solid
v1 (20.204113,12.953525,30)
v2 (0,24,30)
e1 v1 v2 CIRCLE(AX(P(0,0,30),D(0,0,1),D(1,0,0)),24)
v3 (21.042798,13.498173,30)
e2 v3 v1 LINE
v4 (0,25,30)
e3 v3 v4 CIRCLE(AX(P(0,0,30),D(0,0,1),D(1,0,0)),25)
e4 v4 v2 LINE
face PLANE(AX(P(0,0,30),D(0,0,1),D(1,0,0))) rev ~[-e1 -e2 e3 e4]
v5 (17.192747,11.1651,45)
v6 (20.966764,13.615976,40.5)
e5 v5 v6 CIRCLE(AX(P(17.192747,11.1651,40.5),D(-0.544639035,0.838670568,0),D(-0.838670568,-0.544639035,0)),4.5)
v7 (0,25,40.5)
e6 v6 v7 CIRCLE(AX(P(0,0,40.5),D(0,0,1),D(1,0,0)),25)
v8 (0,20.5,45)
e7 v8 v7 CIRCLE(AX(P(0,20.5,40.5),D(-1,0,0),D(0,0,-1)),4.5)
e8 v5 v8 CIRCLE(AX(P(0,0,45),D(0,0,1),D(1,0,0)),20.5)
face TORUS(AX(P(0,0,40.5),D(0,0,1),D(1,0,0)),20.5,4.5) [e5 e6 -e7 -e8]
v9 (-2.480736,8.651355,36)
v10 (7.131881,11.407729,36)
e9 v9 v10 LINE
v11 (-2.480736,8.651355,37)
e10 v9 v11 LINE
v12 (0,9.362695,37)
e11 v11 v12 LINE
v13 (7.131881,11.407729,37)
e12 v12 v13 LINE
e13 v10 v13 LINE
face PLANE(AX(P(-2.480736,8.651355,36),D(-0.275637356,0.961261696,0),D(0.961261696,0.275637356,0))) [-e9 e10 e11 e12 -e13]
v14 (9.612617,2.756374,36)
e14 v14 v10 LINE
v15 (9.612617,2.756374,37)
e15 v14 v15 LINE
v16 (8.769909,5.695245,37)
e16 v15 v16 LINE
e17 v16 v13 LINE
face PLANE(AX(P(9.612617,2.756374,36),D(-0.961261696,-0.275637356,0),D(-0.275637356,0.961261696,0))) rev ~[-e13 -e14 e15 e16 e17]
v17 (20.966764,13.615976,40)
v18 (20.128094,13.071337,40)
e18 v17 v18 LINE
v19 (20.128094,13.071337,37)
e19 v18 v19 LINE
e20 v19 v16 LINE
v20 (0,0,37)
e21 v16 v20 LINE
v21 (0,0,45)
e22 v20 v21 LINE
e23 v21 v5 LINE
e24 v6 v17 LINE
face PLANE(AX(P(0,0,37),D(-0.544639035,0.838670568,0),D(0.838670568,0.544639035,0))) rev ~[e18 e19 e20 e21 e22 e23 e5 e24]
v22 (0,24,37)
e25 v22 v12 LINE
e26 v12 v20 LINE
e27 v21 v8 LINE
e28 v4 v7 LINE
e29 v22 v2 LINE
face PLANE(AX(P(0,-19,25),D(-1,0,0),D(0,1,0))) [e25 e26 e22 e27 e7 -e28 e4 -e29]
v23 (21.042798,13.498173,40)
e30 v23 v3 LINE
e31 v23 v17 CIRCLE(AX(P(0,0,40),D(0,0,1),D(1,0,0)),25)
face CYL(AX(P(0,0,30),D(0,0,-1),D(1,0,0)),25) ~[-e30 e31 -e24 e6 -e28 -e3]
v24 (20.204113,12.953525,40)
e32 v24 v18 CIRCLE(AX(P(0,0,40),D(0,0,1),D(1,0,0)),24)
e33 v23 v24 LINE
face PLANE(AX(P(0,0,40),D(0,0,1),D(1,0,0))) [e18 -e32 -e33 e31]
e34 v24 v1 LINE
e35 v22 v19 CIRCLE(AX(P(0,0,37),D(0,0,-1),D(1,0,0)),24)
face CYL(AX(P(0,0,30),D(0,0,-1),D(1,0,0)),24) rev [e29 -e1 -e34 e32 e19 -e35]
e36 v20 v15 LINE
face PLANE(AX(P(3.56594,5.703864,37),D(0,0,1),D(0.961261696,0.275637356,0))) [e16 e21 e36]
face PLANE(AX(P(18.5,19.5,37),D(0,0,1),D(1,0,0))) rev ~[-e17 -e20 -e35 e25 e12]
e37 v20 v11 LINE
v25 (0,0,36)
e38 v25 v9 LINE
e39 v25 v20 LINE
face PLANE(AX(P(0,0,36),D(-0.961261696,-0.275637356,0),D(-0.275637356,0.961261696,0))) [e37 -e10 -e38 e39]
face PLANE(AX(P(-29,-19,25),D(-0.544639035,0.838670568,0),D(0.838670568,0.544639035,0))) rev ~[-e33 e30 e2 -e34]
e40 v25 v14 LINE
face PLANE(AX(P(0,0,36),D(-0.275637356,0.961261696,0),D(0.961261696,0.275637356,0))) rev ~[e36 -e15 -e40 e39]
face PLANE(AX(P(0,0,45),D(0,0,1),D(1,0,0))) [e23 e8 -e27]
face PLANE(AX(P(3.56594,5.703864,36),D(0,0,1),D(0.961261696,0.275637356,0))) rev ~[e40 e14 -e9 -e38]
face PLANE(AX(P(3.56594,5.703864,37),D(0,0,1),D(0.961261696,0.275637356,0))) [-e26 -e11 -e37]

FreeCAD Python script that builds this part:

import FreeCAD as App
import Part
import Sketcher
from FreeCAD import Vector
Q = App.Units.Quantity


def edges_at(feature, points):
    """Names of the edges that pass closest to the given points."""
    edges = feature.Shape.Edges
    near = lambda p: min(range(len(edges)), key=lambda i: edges[i].distToShape(Part.Vertex(*p))[0])
    return sorted({f"Edge{near(p) + 1}" for p in points})

doc = App.newDocument("Part")
body = doc.addObject("PartDesign::Body", "Body")

sketch1 = doc.addObject("Sketcher::SketchObject", "Sketch")
body.addObject(sketch1)
sketch1.AttachmentSupport = (doc.XY_Plane, [""])
sketch1.MapMode = "FlatFace"
sketch1.addGeometry(Part.LineSegment(Vector(0, 9, 0), Vector(0, 0, 0)), False)
sketch1.addGeometry(Part.LineSegment(Vector(0, 0, 0), Vector(10, 0, 0)), False)
sketch1.addGeometry(Part.LineSegment(Vector(10, 0, 0), Vector(10, 9, 0)), False)
sketch1.addGeometry(Part.LineSegment(Vector(10, 9, 0), Vector(0, 9, 0)), False)
sketch1.addConstraint(Sketcher.Constraint("Coincident", 0, 2, 1, 1))
sketch1.addConstraint(Sketcher.Constraint("Coincident", 1, 2, 2, 1))
sketch1.addConstraint(Sketcher.Constraint("Coincident", 2, 2, 3, 1))
sketch1.addConstraint(Sketcher.Constraint("Coincident", 3, 2, 0, 1))
sketch1.addConstraint(Sketcher.Constraint("Vertical", 0))
sketch1.addConstraint(Sketcher.Constraint("Horizontal", 1))
sketch1.addConstraint(Sketcher.Constraint("Vertical", 2))
sketch1.addConstraint(Sketcher.Constraint("Horizontal", 3))
sketch1.addConstraint(Sketcher.Constraint("Coincident", 0, 2, -1, 1))
sketch1.addConstraint(Sketcher.Constraint("DistanceX", 1, 1, 1, 2, Q("10 mm")))
sketch1.addConstraint(Sketcher.Constraint("DistanceY", 0, 2, 0, 1, Q("9 mm")))
pad1 = doc.addObject("PartDesign::Pad", "Pad")
body.addObject(pad1)
pad1.Profile = sketch1
pad1.Length = 1
body2 = doc.addObject("PartDesign::Body", "Body001")
doc.recompute()

body.Placement = App.Placement(Vector(0, 0, 36), App.Rotation(Vector(0, 0, 1), 16))
boolean = doc.addObject("PartDesign::Boolean", "Boolean")
body2.addObject(boolean)
boolean.Type = "Fuse"
boolean.addObjects([body])
body3 = doc.addObject("PartDesign::Body", "Body002")

sketch2 = doc.addObject("Sketcher::SketchObject", "Sketch001")
body3.addObject(sketch2)
sketch2.AttachmentSupport = (doc.getObject("XY_Plane002"), [""])
sketch2.MapMode = "FlatFace"
sketch2.addGeometry(Part.Circle(Vector(0, 0, 0), Vector(0, 0, 1), 22), False)
sketch2.addConstraint(Sketcher.Constraint("Coincident", 0, 3, -1, 1))
sketch2.addConstraint(Sketcher.Constraint("Diameter", 0, Q("44 mm")))
pad2 = doc.addObject("PartDesign::Pad", "Pad001")
body3.addObject(pad2)
pad2.Profile = sketch2
pad2.Length = 37
body4 = doc.addObject("PartDesign::Body", "Body003")

sketch3 = doc.addObject("Sketcher::SketchObject", "Sketch002")
body4.addObject(sketch3)
sketch3.AttachmentSupport = (doc.getObject("XY_Plane003"), [""])
sketch3.MapMode = "FlatFace"
sketch3.addGeometry(Part.Circle(Vector(0, 0, 0), Vector(0, 0, 1), 25), False)
sketch3.addConstraint(Sketcher.Constraint("Coincident", 0, 3, -1, 1))
sketch3.addConstraint(Sketcher.Constraint("Diameter", 0, Q("50 mm")))
pad3 = doc.addObject("PartDesign::Pad", "Pad002")
body4.addObject(pad3)
pad3.Profile = sketch3
pad3.Length = 40
doc.recompute()

boolean2 = doc.addObject("PartDesign::Boolean", "Boolean001")
body4.addObject(boolean2)
boolean2.Type = "Cut"
boolean2.addObjects([body3])
body5 = doc.addObject("PartDesign::Body", "Body004")

sketch4 = doc.addObject("Sketcher::SketchObject", "Sketch003")
body5.addObject(sketch4)
sketch4.AttachmentSupport = (doc.getObject("XY_Plane004"), [""])
sketch4.MapMode = "FlatFace"
sketch4.addGeometry(Part.Circle(Vector(0, 0, 0), Vector(0, 0, 1), 21), False)
sketch4.addConstraint(Sketcher.Constraint("Coincident", 0, 3, -1, 1))
sketch4.addConstraint(Sketcher.Constraint("Diameter", 0, Q("42 mm")))
pad4 = doc.addObject("PartDesign::Pad", "Pad003")
body5.addObject(pad4)
pad4.Profile = sketch4
pad4.Length = 21
body6 = doc.addObject("PartDesign::Body", "Body005")

sketch5 = doc.addObject("Sketcher::SketchObject", "Sketch004")
body6.addObject(sketch5)
sketch5.AttachmentSupport = (doc.getObject("XY_Plane005"), [""])
sketch5.MapMode = "FlatFace"
sketch5.addGeometry(Part.Circle(Vector(0, 0, 0), Vector(0, 0, 1), 23), False)
sketch5.addConstraint(Sketcher.Constraint("Coincident", 0, 3, -1, 1))
sketch5.addConstraint(Sketcher.Constraint("Diameter", 0, Q("46 mm")))
pad5 = doc.addObject("PartDesign::Pad", "Pad004")
body6.addObject(pad5)
pad5.Profile = sketch5
pad5.Length = 10
doc.recompute()

boolean3 = doc.addObject("PartDesign::Boolean", "Boolean002")
body6.addObject(boolean3)
boolean3.Type = "Cut"
boolean3.addObjects([body5])
body7 = doc.addObject("PartDesign::Body", "Body006")
doc.recompute()

body6.Placement = App.Placement(Vector(0, 0, -5), App.Rotation(Vector(0, 0, 1), 0))
boolean4 = doc.addObject("PartDesign::Boolean", "Boolean003")
body7.addObject(boolean4)
boolean4.Type = "Fuse"
boolean4.addObjects([body6])
body8 = doc.addObject("PartDesign::Body", "Body007")

sketch6 = doc.addObject("Sketcher::SketchObject", "Sketch005")
body8.addObject(sketch6)
sketch6.AttachmentSupport = (doc.getObject("XY_Plane007"), [""])
sketch6.MapMode = "FlatFace"
sketch6.AttachmentOffset = App.Placement(Vector(0, 0, 40), App.Rotation())
sketch6.addGeometry(Part.Circle(Vector(0, 0, 0), Vector(0, 0, 1), 25), False)
sketch6.addConstraint(Sketcher.Constraint("Coincident", 0, 3, -1, 1))
sketch6.addConstraint(Sketcher.Constraint("Diameter", 0, Q("50 mm")))
pad6 = doc.addObject("PartDesign::Pad", "Pad005")
body8.addObject(pad6)
pad6.Profile = sketch6
pad6.Length = 5
doc.recompute()

fillet = doc.addObject("PartDesign::Fillet", "Fillet")
body8.addObject(fillet)
fillet.Base = (pad6, edges_at(pad6, [(-25, 0, 45)]))
fillet.Radius = 4.5
doc.recompute()

boolean5 = doc.addObject("PartDesign::Boolean", "Boolean004")
body8.addObject(boolean5)
boolean5.Type = "Fuse"
boolean5.addObjects([body4])
doc.recompute()

boolean6 = doc.addObject("PartDesign::Boolean", "Boolean005")
body8.addObject(boolean6)
boolean6.Type = "Fuse"
boolean6.addObjects([body7])
body9 = doc.addObject("PartDesign::Body", "Body008")

sketch7 = doc.addObject("Sketcher::SketchObject", "Sketch006")
body9.addObject(sketch7)
sketch7.AttachmentSupport = (doc.getObject("XY_Plane008"), [""])
sketch7.MapMode = "FlatFace"
sketch7.addGeometry(Part.LineSegment(Vector(0, 39, 0), Vector(0, 0, 0)), False)
sketch7.addGeometry(Part.LineSegment(Vector(0, 0, 0), Vector(37, 0, 0)), False)
sketch7.addGeometry(Part.LineSegment(Vector(37, 0, 0), Vector(37, 39, 0)), False)
sketch7.addGeometry(Part.LineSegment(Vector(37, 39, 0), Vector(0, 39, 0)), False)
sketch7.addConstraint(Sketcher.Constraint("Coincident", 0, 2, 1, 1))
sketch7.addConstraint(Sketcher.Constraint("Coincident", 1, 2, 2, 1))
sketch7.addConstraint(Sketcher.Constraint("Coincident", 2, 2, 3, 1))
sketch7.addConstraint(Sketcher.Constraint("Coincident", 3, 2, 0, 1))
sketch7.addConstraint(Sketcher.Constraint("Vertical", 0))
sketch7.addConstraint(Sketcher.Constraint("Horizontal", 1))
sketch7.addConstraint(Sketcher.Constraint("Vertical", 2))
sketch7.addConstraint(Sketcher.Constraint("Horizontal", 3))
sketch7.addConstraint(Sketcher.Constraint("Coincident", 0, 2, -1, 1))
sketch7.addConstraint(Sketcher.Constraint("DistanceX", 1, 1, 1, 2, Q("37 mm")))
sketch7.addConstraint(Sketcher.Constraint("DistanceY", 0, 2, 0, 1, Q("39 mm")))
pad7 = doc.addObject("PartDesign::Pad", "Pad006")
body9.addObject(pad7)
pad7.Profile = sketch7
pad7.Length = 10
body10 = doc.addObject("PartDesign::Body", "Body009")
doc.recompute()

body9.Placement = App.Placement(Vector(0, 0, 37), App.Rotation(Vector(0, 0, -1), 57))
boolean7 = doc.addObject("PartDesign::Boolean", "Boolean006")
body10.addObject(boolean7)
boolean7.Type = "Fuse"
boolean7.addObjects([body9])
body11 = doc.addObject("PartDesign::Body", "Body010")

sketch8 = doc.addObject("Sketcher::SketchObject", "Sketch007")
body11.addObject(sketch8)
sketch8.AttachmentSupport = (doc.getObject("XY_Plane010"), [""])
sketch8.MapMode = "FlatFace"
sketch8.AttachmentOffset = App.Placement(Vector(0, 0, 37), App.Rotation())
sketch8.addGeometry(Part.LineSegment(Vector(0, 39, 0), Vector(0, 0, 0)), False)
sketch8.addGeometry(Part.LineSegment(Vector(0, 0, 0), Vector(37, 0, 0)), False)
sketch8.addGeometry(Part.LineSegment(Vector(37, 0, 0), Vector(37, 39, 0)), False)
sketch8.addGeometry(Part.LineSegment(Vector(37, 39, 0), Vector(0, 39, 0)), False)
sketch8.addConstraint(Sketcher.Constraint("Coincident", 0, 2, 1, 1))
sketch8.addConstraint(Sketcher.Constraint("Coincident", 1, 2, 2, 1))
sketch8.addConstraint(Sketcher.Constraint("Coincident", 2, 2, 3, 1))
sketch8.addConstraint(Sketcher.Constraint("Coincident", 3, 2, 0, 1))
sketch8.addConstraint(Sketcher.Constraint("Vertical", 0))
sketch8.addConstraint(Sketcher.Constraint("Horizontal", 1))
sketch8.addConstraint(Sketcher.Constraint("Vertical", 2))
sketch8.addConstraint(Sketcher.Constraint("Horizontal", 3))
sketch8.addConstraint(Sketcher.Constraint("Coincident", 0, 2, -1, 1))
sketch8.addConstraint(Sketcher.Constraint("DistanceX", 1, 1, 1, 2, Q("37 mm")))
sketch8.addConstraint(Sketcher.Constraint("DistanceY", 0, 2, 0, 1, Q("39 mm")))
pad8 = doc.addObject("PartDesign::Pad", "Pad007")
body11.addObject(pad8)
pad8.Profile = sketch8
pad8.Length = 10
doc.recompute()

boolean8 = doc.addObject("PartDesign::Boolean", "Boolean007")
body11.addObject(boolean8)
boolean8.Type = "Cut"
boolean8.addObjects([body10])
doc.recompute()

boolean9 = doc.addObject("PartDesign::Boolean", "Boolean008")
body11.addObject(boolean9)
boolean9.Type = "Common"
boolean9.addObjects([body8])
body12 = doc.addObject("PartDesign::Body", "Body011")

sketch9 = doc.addObject("Sketcher::SketchObject", "Sketch008")
body12.addObject(sketch9)
sketch9.AttachmentSupport = (doc.getObject("XY_Plane011"), [""])
sketch9.MapMode = "FlatFace"
sketch9.AttachmentOffset = App.Placement(Vector(0, 0, 29), App.Rotation())
sketch9.addGeometry(Part.LineSegment(Vector(-33, 51, 0), Vector(-33, -19, 0)), False)
sketch9.addGeometry(Part.LineSegment(Vector(-33, -19, 0), Vector(0, -19, 0)), False)
sketch9.addGeometry(Part.LineSegment(Vector(0, -19, 0), Vector(0, 51, 0)), False)
sketch9.addGeometry(Part.LineSegment(Vector(0, 51, 0), Vector(-33, 51, 0)), False)
sketch9.addConstraint(Sketcher.Constraint("Coincident", 0, 2, 1, 1))
sketch9.addConstraint(Sketcher.Constraint("Coincident", 1, 2, 2, 1))
sketch9.addConstraint(Sketcher.Constraint("Coincident", 2, 2, 3, 1))
sketch9.addConstraint(Sketcher.Constraint("Coincident", 3, 2, 0, 1))
sketch9.addConstraint(Sketcher.Constraint("Vertical", 0))
sketch9.addConstraint(Sketcher.Constraint("Horizontal", 1))
sketch9.addConstraint(Sketcher.Constraint("Vertical", 2))
sketch9.addConstraint(Sketcher.Constraint("Horizontal", 3))
sketch9.addConstraint(Sketcher.Constraint("PointOnObject", 1, 2, -2))
sketch9.addConstraint(Sketcher.Constraint("DistanceX", 1, 1, 1, 2, Q("33 mm")))
sketch9.addConstraint(Sketcher.Constraint("DistanceY", 0, 2, 0, 1, Q("70 mm")))
sketch9.addConstraint(Sketcher.Constraint("DistanceY", 0, 2, -1, 1, Q("19 mm")))
pad9 = doc.addObject("PartDesign::Pad", "Pad008")
body12.addObject(pad9)
pad9.Profile = sketch9
pad9.Length = 17
body13 = doc.addObject("PartDesign::Body", "Body012")

sketch10 = doc.addObject("Sketcher::SketchObject", "Sketch009")
body13.addObject(sketch10)
sketch10.AttachmentSupport = (doc.getObject("XY_Plane012"), [""])
sketch10.MapMode = "FlatFace"
sketch10.addGeometry(Part.LineSegment(Vector(0, 70, 0), Vector(0, 0, 0)), False)
sketch10.addGeometry(Part.LineSegment(Vector(0, 0, 0), Vector(33, 0, 0)), False)
sketch10.addGeometry(Part.LineSegment(Vector(33, 0, 0), Vector(33, 70, 0)), False)
sketch10.addGeometry(Part.LineSegment(Vector(33, 70, 0), Vector(0, 70, 0)), False)
sketch10.addConstraint(Sketcher.Constraint("Coincident", 0, 2, 1, 1))
sketch10.addConstraint(Sketcher.Constraint("Coincident", 1, 2, 2, 1))
sketch10.addConstraint(Sketcher.Constraint("Coincident", 2, 2, 3, 1))
sketch10.addConstraint(Sketcher.Constraint("Coincident", 3, 2, 0, 1))
sketch10.addConstraint(Sketcher.Constraint("Vertical", 0))
sketch10.addConstraint(Sketcher.Constraint("Horizontal", 1))
sketch10.addConstraint(Sketcher.Constraint("Vertical", 2))
sketch10.addConstraint(Sketcher.Constraint("Horizontal", 3))
sketch10.addConstraint(Sketcher.Constraint("Coincident", 0, 2, -1, 1))
sketch10.addConstraint(Sketcher.Constraint("DistanceX", 1, 1, 1, 2, Q("33 mm")))
sketch10.addConstraint(Sketcher.Constraint("DistanceY", 0, 2, 0, 1, Q("70 mm")))
pad10 = doc.addObject("PartDesign::Pad", "Pad009")
body13.addObject(pad10)
pad10.Profile = sketch10
pad10.Length = 17
body14 = doc.addObject("PartDesign::Body", "Body013")
doc.recompute()

body13.Placement = App.Placement(Vector(-29, -19, 29), App.Rotation(Vector(0, 0, -1), 57))
boolean10 = doc.addObject("PartDesign::Boolean", "Boolean009")
body14.addObject(boolean10)
boolean10.Type = "Fuse"
boolean10.addObjects([body13])
doc.recompute()

boolean11 = doc.addObject("PartDesign::Boolean", "Boolean010")
body14.addObject(boolean11)
boolean11.Type = "Fuse"
boolean11.addObjects([body12])
body15 = doc.addObject("PartDesign::Body", "Body014")

sketch11 = doc.addObject("Sketcher::SketchObject", "Sketch010")
body15.addObject(sketch11)
sketch11.AttachmentSupport = (doc.getObject("XY_Plane014"), [""])
sketch11.MapMode = "FlatFace"
sketch11.AttachmentOffset = App.Placement(Vector(0, 0, 34), App.Rotation())
sketch11.addGeometry(Part.Circle(Vector(0, 0, 0), Vector(0, 0, 1), 24), False)
sketch11.addConstraint(Sketcher.Constraint("Coincident", 0, 3, -1, 1))
sketch11.addConstraint(Sketcher.Constraint("Diameter", 0, Q("48 mm")))
pad11 = doc.addObject("PartDesign::Pad", "Pad010")
body15.addObject(pad11)
pad11.Profile = sketch11
pad11.Length = 10
body16 = doc.addObject("PartDesign::Body", "Body015")

sketch12 = doc.addObject("Sketcher::SketchObject", "Sketch011")
body16.addObject(sketch12)
sketch12.AttachmentSupport = (doc.getObject("XY_Plane015"), [""])
sketch12.MapMode = "FlatFace"
sketch12.AttachmentOffset = App.Placement(Vector(0, 0, 34), App.Rotation())
sketch12.addGeometry(Part.Circle(Vector(0, 0, 0), Vector(0, 0, 1), 25), False)
sketch12.addConstraint(Sketcher.Constraint("Coincident", 0, 3, -1, 1))
sketch12.addConstraint(Sketcher.Constraint("Diameter", 0, Q("50 mm")))
pad12 = doc.addObject("PartDesign::Pad", "Pad011")
body16.addObject(pad12)
pad12.Profile = sketch12
pad12.Length = 10
doc.recompute()

boolean12 = doc.addObject("PartDesign::Boolean", "Boolean011")
body16.addObject(boolean12)
boolean12.Type = "Cut"
boolean12.addObjects([body15])
doc.recompute()

boolean13 = doc.addObject("PartDesign::Boolean", "Boolean012")
body16.addObject(boolean13)
boolean13.Type = "Cut"
boolean13.addObjects([body14])
body17 = doc.addObject("PartDesign::Body", "Body016")
body17.AllowCompound = True
doc.recompute()

body16.Placement = App.Placement(Vector(0, 0, -4), App.Rotation(Vector(0, 0, 1), 0))
boolean14 = doc.addObject("PartDesign::Boolean", "Boolean013")
body17.addObject(boolean14)
boolean14.Type = "Fuse"
boolean14.addObjects([body16])
doc.recompute()

boolean15 = doc.addObject("PartDesign::Boolean", "Boolean014")
body17.addObject(boolean15)
boolean15.Type = "Fuse"
boolean15.addObjects([body2])
doc.recompute()

boolean16 = doc.addObject("PartDesign::Boolean", "Boolean015")
body17.addObject(boolean16)
boolean16.Type = "Fuse"
boolean16.addObjects([body11])

doc.recompute()
